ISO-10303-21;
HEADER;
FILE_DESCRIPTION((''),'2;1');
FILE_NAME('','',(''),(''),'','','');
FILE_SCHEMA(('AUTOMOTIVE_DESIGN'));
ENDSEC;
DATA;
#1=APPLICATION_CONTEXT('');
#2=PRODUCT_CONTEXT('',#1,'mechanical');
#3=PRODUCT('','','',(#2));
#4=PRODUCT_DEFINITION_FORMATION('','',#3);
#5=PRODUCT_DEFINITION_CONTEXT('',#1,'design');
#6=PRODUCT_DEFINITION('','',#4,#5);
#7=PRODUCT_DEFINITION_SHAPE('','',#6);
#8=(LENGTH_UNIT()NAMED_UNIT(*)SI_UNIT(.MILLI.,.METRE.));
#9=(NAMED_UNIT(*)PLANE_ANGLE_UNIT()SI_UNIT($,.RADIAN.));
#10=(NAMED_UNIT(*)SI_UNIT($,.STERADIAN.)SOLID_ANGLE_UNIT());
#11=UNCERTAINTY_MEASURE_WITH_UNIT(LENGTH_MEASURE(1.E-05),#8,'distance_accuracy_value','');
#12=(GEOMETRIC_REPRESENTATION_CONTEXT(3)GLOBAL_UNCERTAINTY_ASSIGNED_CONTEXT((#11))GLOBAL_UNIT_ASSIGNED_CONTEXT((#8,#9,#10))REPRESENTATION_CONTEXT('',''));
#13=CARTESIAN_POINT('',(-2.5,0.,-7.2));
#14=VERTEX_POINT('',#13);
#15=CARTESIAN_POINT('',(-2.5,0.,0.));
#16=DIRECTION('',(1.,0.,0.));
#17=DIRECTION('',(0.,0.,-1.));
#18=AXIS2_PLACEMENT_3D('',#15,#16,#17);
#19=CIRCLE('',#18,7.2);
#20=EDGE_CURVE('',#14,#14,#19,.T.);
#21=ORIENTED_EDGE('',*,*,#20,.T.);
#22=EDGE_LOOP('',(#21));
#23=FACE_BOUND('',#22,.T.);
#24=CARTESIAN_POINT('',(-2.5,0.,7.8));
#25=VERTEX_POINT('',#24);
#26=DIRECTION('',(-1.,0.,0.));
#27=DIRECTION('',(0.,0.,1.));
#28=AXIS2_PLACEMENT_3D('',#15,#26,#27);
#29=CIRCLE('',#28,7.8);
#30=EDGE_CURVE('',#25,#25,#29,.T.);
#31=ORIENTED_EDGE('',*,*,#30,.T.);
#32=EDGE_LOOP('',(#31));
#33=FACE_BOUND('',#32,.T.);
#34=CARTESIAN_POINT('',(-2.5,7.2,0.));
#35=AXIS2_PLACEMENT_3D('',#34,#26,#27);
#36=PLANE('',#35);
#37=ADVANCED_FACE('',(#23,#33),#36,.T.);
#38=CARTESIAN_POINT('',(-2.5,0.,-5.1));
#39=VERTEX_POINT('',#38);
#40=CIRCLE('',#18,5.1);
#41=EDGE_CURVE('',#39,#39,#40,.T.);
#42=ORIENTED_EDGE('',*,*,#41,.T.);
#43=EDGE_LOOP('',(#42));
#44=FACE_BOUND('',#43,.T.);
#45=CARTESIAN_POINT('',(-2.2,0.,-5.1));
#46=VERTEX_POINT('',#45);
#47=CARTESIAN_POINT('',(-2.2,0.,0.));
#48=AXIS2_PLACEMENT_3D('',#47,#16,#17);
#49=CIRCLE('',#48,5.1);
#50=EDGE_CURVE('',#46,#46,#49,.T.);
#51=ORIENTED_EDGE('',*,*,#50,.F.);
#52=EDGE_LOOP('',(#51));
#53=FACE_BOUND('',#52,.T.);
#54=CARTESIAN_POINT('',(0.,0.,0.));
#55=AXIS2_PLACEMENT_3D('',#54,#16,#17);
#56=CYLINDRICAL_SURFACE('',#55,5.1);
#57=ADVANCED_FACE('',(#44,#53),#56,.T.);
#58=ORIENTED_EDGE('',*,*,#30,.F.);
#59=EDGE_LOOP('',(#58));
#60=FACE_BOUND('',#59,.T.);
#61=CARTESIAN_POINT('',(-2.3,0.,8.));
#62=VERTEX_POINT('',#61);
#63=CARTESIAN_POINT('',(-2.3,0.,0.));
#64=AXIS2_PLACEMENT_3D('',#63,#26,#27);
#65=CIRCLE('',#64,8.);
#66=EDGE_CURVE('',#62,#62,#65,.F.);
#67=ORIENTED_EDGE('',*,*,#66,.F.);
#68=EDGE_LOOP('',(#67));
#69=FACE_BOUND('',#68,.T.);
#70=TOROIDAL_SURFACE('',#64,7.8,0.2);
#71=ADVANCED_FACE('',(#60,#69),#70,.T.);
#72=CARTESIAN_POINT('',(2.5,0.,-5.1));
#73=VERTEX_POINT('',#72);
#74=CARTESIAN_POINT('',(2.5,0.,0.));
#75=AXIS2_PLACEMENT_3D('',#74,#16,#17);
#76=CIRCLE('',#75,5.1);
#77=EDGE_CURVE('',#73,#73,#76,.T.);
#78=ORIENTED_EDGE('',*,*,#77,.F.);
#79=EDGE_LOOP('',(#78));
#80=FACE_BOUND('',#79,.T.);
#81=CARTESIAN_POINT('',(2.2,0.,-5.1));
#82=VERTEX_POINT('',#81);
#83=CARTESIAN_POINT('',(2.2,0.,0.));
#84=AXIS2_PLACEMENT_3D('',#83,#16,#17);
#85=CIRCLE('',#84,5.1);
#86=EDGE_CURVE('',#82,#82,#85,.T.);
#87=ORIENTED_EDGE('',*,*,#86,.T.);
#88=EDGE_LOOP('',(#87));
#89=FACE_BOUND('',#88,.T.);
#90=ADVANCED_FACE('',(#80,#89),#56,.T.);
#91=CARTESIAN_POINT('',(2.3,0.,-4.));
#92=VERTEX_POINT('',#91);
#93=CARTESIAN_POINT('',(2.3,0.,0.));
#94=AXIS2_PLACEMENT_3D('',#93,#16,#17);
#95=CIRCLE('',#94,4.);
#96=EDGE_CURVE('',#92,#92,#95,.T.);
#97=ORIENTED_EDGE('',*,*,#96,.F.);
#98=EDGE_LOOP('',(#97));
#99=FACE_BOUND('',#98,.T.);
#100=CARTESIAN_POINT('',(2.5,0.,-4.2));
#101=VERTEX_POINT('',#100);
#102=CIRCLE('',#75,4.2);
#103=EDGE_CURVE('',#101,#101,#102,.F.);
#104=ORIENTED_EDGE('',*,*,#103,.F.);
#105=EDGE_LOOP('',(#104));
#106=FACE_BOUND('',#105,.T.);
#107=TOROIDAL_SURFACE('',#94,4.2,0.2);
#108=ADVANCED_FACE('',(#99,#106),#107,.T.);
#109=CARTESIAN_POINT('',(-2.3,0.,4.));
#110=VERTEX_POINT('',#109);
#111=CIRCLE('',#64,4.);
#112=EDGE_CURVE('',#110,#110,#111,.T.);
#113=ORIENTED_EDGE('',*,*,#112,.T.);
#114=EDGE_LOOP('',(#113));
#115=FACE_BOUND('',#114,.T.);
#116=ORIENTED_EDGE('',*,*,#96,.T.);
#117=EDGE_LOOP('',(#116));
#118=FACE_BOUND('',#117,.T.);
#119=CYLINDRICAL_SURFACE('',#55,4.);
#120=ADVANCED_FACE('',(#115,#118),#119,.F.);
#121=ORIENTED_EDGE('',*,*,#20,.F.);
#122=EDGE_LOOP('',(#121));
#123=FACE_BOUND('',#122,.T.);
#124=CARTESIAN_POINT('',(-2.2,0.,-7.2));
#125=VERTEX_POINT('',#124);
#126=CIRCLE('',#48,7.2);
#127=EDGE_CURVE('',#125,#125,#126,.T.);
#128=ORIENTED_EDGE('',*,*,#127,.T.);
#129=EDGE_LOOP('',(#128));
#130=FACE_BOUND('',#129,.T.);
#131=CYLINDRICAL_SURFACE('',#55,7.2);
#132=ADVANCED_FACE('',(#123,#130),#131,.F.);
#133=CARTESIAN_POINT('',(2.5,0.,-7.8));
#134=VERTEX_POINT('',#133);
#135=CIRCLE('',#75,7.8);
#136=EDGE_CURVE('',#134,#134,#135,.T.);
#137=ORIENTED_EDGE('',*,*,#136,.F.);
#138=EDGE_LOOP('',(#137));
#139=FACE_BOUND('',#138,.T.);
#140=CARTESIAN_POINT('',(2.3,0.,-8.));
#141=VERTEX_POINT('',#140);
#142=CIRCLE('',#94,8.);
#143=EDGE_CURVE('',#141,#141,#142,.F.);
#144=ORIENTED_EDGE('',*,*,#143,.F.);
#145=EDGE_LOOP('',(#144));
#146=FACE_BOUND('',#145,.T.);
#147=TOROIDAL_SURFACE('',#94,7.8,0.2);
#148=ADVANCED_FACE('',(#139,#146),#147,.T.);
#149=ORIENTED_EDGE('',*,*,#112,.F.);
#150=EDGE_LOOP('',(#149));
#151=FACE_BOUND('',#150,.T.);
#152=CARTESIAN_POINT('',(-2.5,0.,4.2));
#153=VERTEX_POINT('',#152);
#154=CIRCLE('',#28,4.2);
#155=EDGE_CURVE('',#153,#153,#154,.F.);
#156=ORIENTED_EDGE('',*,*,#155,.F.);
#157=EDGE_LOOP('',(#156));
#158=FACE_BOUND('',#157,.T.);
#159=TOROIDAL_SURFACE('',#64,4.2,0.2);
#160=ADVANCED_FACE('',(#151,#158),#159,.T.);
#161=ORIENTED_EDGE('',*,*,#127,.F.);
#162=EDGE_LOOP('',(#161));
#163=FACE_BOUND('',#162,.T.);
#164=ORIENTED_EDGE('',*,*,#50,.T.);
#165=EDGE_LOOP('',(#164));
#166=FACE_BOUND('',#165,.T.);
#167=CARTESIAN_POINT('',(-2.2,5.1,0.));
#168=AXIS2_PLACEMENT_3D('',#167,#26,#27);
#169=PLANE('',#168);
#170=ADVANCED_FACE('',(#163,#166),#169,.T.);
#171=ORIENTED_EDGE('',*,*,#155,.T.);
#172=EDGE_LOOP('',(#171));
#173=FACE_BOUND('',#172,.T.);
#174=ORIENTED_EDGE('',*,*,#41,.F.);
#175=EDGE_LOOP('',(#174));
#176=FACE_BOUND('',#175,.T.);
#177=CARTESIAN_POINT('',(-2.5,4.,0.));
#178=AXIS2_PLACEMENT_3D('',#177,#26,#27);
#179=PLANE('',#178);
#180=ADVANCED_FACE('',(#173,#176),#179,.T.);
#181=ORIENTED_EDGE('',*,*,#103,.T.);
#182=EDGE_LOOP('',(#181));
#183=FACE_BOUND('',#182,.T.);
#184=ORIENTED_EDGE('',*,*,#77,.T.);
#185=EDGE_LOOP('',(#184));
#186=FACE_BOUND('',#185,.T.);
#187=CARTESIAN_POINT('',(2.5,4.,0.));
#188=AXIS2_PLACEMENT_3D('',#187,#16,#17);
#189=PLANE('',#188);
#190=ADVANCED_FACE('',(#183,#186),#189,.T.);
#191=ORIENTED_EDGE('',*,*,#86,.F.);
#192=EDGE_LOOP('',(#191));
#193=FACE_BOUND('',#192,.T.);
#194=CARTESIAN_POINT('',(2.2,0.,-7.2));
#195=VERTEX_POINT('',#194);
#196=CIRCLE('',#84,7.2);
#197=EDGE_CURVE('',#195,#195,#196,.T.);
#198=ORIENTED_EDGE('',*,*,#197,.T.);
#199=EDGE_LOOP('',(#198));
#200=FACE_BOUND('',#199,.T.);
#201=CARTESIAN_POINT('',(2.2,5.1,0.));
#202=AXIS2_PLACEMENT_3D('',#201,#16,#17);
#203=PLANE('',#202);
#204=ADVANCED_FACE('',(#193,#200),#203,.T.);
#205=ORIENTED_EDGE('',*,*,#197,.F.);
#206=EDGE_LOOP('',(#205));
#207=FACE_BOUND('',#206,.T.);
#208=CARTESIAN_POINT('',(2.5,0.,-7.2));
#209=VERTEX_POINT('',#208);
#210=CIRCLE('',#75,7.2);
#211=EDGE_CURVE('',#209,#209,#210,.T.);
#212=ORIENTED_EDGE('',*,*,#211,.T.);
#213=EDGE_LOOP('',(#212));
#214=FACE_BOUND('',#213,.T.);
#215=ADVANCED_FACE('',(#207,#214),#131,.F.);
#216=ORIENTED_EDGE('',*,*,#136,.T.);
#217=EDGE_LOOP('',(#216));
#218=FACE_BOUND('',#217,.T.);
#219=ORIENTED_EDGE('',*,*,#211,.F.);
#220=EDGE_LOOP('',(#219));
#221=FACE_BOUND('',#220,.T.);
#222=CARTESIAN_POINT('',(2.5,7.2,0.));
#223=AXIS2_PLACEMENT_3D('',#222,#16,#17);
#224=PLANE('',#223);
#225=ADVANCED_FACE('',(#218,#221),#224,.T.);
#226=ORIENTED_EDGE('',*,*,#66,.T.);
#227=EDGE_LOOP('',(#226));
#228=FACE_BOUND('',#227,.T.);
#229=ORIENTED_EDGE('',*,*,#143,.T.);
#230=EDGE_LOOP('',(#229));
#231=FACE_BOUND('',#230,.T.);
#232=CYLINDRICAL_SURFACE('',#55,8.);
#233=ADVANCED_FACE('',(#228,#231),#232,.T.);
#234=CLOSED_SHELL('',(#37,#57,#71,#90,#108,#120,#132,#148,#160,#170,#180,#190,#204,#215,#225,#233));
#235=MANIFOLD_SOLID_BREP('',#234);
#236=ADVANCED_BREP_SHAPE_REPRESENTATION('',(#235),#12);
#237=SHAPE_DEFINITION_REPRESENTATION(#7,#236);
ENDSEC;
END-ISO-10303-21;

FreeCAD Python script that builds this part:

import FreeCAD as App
import Part
import Sketcher
from FreeCAD import Vector
Q = App.Units.Quantity


def edges_at(feature, points):
    """Names of the edges that pass closest to the given points."""
    edges = feature.Shape.Edges
    near = lambda p: min(range(len(edges)), key=lambda i: edges[i].distToShape(Part.Vertex(*p))[0])
    return sorted({f"Edge{near(p) + 1}" for p in points})

doc = App.newDocument("Part")
body = doc.addObject("PartDesign::Body", "Body")

# Sketch on XY plane
sketch1 = body.newObject("Sketcher::SketchObject", "Sketch")
sketch1.AttachmentSupport = (doc.getObject("XY_Plane"), [""])
sketch1.MapMode = "FlatFace"
sketch1.addGeometry([
    Part.LineSegment(Vector(-2.5, 4, 0), Vector(2.5, 4, 0)),  # 0
    Part.LineSegment(Vector(2.5, 4, 0), Vector(2.5, 5.1, 0)),  # 1
    Part.LineSegment(Vector(2.5, 5.1, 0), Vector(2.2, 5.1, 0)),  # 2
    Part.LineSegment(Vector(2.2, 5.1, 0), Vector(2.2, 7.2, 0)),  # 3
    Part.LineSegment(Vector(2.2, 7.2, 0), Vector(2.5, 7.2, 0)),  # 4
    Part.LineSegment(Vector(2.5, 7.2, 0), Vector(2.5, 8, 0)),  # 5
    Part.LineSegment(Vector(2.5, 8, 0), Vector(-2.5, 8, 0)),  # 6
    Part.LineSegment(Vector(-2.5, 8, 0), Vector(-2.5, 7.2, 0)),  # 7
    Part.LineSegment(Vector(-2.5, 7.2, 0), Vector(-2.2, 7.2, 0)),  # 8
    Part.LineSegment(Vector(-2.2, 7.2, 0), Vector(-2.2, 5.1, 0)),  # 9
    Part.LineSegment(Vector(-2.2, 5.1, 0), Vector(-2.5, 5.1, 0)),  # 10
    Part.LineSegment(Vector(-2.5, 5.1, 0), Vector(-2.5, 4, 0)),  # 11
], False)
sketch1.addConstraint([
    Sketcher.Constraint("Coincident", 0, 2, 1, 1),
    Sketcher.Constraint("Coincident", 1, 2, 2, 1),
    Sketcher.Constraint("Coincident", 2, 2, 3, 1),
    Sketcher.Constraint("Coincident", 3, 2, 4, 1),
    Sketcher.Constraint("Coincident", 4, 2, 5, 1),
    Sketcher.Constraint("Coincident", 5, 2, 6, 1),
    Sketcher.Constraint("Coincident", 6, 2, 7, 1),
    Sketcher.Constraint("Coincident", 7, 2, 8, 1),
    Sketcher.Constraint("Coincident", 8, 2, 9, 1),
    Sketcher.Constraint("Coincident", 9, 2, 10, 1),
    Sketcher.Constraint("Coincident", 10, 2, 11, 1),
    Sketcher.Constraint("Coincident", 11, 2, 0, 1),
    Sketcher.Constraint("Horizontal", 0),
    Sketcher.Constraint("Vertical", 1),
    Sketcher.Constraint("Horizontal", 2),
    Sketcher.Constraint("Vertical", 3),
    Sketcher.Constraint("Horizontal", 4),
    Sketcher.Constraint("Vertical", 5),
    Sketcher.Constraint("Horizontal", 6),
    Sketcher.Constraint("Vertical", 7),
    Sketcher.Constraint("Horizontal", 8),
    Sketcher.Constraint("Vertical", 9),
    Sketcher.Constraint("Horizontal", 10),
    Sketcher.Constraint("Vertical", 11),
    Sketcher.Constraint("Symmetric", 4, 2, 7, 2, -2),
    Sketcher.Constraint("Symmetric", 2, 2, 9, 2, -2),
    Sketcher.Constraint("Vertical", 1, 2, 4, 2),
    Sketcher.Constraint("Vertical", 7, 2, 10, 2),
    Sketcher.Constraint("DistanceX", 0, 1, 0, 2, Q("5 mm")),
    Sketcher.Constraint("DistanceX", 2, 2, 2, 1, Q("0.3 mm")),
    Sketcher.Constraint("DistanceY", 1, 1, 1, 2, Q("1.1 mm")),
    Sketcher.Constraint("DistanceY", 3, 1, 3, 2, Q("2.1 mm")),
    Sketcher.Constraint("DistanceY", 5, 1, 5, 2, Q("0.8 mm")),
    Sketcher.Constraint("DistanceY", -1, 1, 0, 2, Q("4 mm")),
])
revolution = body.newObject("PartDesign::Revolution", "Revolution")
revolution.Profile = sketch1
revolution.ReferenceAxis = (sketch1, ["H_Axis"])
revolution.Angle = 360
doc.recompute()

fillet = body.newObject("PartDesign::Fillet", "Fillet")
fillet.Base = (revolution, edges_at(revolution, [
    (2.5, 0, 8),
    (-2.5, 0, 8),
    (-2.5, 0, 4),
    (2.5, 0, 4),
]))
fillet.Radius = 0.2

doc.recompute()
